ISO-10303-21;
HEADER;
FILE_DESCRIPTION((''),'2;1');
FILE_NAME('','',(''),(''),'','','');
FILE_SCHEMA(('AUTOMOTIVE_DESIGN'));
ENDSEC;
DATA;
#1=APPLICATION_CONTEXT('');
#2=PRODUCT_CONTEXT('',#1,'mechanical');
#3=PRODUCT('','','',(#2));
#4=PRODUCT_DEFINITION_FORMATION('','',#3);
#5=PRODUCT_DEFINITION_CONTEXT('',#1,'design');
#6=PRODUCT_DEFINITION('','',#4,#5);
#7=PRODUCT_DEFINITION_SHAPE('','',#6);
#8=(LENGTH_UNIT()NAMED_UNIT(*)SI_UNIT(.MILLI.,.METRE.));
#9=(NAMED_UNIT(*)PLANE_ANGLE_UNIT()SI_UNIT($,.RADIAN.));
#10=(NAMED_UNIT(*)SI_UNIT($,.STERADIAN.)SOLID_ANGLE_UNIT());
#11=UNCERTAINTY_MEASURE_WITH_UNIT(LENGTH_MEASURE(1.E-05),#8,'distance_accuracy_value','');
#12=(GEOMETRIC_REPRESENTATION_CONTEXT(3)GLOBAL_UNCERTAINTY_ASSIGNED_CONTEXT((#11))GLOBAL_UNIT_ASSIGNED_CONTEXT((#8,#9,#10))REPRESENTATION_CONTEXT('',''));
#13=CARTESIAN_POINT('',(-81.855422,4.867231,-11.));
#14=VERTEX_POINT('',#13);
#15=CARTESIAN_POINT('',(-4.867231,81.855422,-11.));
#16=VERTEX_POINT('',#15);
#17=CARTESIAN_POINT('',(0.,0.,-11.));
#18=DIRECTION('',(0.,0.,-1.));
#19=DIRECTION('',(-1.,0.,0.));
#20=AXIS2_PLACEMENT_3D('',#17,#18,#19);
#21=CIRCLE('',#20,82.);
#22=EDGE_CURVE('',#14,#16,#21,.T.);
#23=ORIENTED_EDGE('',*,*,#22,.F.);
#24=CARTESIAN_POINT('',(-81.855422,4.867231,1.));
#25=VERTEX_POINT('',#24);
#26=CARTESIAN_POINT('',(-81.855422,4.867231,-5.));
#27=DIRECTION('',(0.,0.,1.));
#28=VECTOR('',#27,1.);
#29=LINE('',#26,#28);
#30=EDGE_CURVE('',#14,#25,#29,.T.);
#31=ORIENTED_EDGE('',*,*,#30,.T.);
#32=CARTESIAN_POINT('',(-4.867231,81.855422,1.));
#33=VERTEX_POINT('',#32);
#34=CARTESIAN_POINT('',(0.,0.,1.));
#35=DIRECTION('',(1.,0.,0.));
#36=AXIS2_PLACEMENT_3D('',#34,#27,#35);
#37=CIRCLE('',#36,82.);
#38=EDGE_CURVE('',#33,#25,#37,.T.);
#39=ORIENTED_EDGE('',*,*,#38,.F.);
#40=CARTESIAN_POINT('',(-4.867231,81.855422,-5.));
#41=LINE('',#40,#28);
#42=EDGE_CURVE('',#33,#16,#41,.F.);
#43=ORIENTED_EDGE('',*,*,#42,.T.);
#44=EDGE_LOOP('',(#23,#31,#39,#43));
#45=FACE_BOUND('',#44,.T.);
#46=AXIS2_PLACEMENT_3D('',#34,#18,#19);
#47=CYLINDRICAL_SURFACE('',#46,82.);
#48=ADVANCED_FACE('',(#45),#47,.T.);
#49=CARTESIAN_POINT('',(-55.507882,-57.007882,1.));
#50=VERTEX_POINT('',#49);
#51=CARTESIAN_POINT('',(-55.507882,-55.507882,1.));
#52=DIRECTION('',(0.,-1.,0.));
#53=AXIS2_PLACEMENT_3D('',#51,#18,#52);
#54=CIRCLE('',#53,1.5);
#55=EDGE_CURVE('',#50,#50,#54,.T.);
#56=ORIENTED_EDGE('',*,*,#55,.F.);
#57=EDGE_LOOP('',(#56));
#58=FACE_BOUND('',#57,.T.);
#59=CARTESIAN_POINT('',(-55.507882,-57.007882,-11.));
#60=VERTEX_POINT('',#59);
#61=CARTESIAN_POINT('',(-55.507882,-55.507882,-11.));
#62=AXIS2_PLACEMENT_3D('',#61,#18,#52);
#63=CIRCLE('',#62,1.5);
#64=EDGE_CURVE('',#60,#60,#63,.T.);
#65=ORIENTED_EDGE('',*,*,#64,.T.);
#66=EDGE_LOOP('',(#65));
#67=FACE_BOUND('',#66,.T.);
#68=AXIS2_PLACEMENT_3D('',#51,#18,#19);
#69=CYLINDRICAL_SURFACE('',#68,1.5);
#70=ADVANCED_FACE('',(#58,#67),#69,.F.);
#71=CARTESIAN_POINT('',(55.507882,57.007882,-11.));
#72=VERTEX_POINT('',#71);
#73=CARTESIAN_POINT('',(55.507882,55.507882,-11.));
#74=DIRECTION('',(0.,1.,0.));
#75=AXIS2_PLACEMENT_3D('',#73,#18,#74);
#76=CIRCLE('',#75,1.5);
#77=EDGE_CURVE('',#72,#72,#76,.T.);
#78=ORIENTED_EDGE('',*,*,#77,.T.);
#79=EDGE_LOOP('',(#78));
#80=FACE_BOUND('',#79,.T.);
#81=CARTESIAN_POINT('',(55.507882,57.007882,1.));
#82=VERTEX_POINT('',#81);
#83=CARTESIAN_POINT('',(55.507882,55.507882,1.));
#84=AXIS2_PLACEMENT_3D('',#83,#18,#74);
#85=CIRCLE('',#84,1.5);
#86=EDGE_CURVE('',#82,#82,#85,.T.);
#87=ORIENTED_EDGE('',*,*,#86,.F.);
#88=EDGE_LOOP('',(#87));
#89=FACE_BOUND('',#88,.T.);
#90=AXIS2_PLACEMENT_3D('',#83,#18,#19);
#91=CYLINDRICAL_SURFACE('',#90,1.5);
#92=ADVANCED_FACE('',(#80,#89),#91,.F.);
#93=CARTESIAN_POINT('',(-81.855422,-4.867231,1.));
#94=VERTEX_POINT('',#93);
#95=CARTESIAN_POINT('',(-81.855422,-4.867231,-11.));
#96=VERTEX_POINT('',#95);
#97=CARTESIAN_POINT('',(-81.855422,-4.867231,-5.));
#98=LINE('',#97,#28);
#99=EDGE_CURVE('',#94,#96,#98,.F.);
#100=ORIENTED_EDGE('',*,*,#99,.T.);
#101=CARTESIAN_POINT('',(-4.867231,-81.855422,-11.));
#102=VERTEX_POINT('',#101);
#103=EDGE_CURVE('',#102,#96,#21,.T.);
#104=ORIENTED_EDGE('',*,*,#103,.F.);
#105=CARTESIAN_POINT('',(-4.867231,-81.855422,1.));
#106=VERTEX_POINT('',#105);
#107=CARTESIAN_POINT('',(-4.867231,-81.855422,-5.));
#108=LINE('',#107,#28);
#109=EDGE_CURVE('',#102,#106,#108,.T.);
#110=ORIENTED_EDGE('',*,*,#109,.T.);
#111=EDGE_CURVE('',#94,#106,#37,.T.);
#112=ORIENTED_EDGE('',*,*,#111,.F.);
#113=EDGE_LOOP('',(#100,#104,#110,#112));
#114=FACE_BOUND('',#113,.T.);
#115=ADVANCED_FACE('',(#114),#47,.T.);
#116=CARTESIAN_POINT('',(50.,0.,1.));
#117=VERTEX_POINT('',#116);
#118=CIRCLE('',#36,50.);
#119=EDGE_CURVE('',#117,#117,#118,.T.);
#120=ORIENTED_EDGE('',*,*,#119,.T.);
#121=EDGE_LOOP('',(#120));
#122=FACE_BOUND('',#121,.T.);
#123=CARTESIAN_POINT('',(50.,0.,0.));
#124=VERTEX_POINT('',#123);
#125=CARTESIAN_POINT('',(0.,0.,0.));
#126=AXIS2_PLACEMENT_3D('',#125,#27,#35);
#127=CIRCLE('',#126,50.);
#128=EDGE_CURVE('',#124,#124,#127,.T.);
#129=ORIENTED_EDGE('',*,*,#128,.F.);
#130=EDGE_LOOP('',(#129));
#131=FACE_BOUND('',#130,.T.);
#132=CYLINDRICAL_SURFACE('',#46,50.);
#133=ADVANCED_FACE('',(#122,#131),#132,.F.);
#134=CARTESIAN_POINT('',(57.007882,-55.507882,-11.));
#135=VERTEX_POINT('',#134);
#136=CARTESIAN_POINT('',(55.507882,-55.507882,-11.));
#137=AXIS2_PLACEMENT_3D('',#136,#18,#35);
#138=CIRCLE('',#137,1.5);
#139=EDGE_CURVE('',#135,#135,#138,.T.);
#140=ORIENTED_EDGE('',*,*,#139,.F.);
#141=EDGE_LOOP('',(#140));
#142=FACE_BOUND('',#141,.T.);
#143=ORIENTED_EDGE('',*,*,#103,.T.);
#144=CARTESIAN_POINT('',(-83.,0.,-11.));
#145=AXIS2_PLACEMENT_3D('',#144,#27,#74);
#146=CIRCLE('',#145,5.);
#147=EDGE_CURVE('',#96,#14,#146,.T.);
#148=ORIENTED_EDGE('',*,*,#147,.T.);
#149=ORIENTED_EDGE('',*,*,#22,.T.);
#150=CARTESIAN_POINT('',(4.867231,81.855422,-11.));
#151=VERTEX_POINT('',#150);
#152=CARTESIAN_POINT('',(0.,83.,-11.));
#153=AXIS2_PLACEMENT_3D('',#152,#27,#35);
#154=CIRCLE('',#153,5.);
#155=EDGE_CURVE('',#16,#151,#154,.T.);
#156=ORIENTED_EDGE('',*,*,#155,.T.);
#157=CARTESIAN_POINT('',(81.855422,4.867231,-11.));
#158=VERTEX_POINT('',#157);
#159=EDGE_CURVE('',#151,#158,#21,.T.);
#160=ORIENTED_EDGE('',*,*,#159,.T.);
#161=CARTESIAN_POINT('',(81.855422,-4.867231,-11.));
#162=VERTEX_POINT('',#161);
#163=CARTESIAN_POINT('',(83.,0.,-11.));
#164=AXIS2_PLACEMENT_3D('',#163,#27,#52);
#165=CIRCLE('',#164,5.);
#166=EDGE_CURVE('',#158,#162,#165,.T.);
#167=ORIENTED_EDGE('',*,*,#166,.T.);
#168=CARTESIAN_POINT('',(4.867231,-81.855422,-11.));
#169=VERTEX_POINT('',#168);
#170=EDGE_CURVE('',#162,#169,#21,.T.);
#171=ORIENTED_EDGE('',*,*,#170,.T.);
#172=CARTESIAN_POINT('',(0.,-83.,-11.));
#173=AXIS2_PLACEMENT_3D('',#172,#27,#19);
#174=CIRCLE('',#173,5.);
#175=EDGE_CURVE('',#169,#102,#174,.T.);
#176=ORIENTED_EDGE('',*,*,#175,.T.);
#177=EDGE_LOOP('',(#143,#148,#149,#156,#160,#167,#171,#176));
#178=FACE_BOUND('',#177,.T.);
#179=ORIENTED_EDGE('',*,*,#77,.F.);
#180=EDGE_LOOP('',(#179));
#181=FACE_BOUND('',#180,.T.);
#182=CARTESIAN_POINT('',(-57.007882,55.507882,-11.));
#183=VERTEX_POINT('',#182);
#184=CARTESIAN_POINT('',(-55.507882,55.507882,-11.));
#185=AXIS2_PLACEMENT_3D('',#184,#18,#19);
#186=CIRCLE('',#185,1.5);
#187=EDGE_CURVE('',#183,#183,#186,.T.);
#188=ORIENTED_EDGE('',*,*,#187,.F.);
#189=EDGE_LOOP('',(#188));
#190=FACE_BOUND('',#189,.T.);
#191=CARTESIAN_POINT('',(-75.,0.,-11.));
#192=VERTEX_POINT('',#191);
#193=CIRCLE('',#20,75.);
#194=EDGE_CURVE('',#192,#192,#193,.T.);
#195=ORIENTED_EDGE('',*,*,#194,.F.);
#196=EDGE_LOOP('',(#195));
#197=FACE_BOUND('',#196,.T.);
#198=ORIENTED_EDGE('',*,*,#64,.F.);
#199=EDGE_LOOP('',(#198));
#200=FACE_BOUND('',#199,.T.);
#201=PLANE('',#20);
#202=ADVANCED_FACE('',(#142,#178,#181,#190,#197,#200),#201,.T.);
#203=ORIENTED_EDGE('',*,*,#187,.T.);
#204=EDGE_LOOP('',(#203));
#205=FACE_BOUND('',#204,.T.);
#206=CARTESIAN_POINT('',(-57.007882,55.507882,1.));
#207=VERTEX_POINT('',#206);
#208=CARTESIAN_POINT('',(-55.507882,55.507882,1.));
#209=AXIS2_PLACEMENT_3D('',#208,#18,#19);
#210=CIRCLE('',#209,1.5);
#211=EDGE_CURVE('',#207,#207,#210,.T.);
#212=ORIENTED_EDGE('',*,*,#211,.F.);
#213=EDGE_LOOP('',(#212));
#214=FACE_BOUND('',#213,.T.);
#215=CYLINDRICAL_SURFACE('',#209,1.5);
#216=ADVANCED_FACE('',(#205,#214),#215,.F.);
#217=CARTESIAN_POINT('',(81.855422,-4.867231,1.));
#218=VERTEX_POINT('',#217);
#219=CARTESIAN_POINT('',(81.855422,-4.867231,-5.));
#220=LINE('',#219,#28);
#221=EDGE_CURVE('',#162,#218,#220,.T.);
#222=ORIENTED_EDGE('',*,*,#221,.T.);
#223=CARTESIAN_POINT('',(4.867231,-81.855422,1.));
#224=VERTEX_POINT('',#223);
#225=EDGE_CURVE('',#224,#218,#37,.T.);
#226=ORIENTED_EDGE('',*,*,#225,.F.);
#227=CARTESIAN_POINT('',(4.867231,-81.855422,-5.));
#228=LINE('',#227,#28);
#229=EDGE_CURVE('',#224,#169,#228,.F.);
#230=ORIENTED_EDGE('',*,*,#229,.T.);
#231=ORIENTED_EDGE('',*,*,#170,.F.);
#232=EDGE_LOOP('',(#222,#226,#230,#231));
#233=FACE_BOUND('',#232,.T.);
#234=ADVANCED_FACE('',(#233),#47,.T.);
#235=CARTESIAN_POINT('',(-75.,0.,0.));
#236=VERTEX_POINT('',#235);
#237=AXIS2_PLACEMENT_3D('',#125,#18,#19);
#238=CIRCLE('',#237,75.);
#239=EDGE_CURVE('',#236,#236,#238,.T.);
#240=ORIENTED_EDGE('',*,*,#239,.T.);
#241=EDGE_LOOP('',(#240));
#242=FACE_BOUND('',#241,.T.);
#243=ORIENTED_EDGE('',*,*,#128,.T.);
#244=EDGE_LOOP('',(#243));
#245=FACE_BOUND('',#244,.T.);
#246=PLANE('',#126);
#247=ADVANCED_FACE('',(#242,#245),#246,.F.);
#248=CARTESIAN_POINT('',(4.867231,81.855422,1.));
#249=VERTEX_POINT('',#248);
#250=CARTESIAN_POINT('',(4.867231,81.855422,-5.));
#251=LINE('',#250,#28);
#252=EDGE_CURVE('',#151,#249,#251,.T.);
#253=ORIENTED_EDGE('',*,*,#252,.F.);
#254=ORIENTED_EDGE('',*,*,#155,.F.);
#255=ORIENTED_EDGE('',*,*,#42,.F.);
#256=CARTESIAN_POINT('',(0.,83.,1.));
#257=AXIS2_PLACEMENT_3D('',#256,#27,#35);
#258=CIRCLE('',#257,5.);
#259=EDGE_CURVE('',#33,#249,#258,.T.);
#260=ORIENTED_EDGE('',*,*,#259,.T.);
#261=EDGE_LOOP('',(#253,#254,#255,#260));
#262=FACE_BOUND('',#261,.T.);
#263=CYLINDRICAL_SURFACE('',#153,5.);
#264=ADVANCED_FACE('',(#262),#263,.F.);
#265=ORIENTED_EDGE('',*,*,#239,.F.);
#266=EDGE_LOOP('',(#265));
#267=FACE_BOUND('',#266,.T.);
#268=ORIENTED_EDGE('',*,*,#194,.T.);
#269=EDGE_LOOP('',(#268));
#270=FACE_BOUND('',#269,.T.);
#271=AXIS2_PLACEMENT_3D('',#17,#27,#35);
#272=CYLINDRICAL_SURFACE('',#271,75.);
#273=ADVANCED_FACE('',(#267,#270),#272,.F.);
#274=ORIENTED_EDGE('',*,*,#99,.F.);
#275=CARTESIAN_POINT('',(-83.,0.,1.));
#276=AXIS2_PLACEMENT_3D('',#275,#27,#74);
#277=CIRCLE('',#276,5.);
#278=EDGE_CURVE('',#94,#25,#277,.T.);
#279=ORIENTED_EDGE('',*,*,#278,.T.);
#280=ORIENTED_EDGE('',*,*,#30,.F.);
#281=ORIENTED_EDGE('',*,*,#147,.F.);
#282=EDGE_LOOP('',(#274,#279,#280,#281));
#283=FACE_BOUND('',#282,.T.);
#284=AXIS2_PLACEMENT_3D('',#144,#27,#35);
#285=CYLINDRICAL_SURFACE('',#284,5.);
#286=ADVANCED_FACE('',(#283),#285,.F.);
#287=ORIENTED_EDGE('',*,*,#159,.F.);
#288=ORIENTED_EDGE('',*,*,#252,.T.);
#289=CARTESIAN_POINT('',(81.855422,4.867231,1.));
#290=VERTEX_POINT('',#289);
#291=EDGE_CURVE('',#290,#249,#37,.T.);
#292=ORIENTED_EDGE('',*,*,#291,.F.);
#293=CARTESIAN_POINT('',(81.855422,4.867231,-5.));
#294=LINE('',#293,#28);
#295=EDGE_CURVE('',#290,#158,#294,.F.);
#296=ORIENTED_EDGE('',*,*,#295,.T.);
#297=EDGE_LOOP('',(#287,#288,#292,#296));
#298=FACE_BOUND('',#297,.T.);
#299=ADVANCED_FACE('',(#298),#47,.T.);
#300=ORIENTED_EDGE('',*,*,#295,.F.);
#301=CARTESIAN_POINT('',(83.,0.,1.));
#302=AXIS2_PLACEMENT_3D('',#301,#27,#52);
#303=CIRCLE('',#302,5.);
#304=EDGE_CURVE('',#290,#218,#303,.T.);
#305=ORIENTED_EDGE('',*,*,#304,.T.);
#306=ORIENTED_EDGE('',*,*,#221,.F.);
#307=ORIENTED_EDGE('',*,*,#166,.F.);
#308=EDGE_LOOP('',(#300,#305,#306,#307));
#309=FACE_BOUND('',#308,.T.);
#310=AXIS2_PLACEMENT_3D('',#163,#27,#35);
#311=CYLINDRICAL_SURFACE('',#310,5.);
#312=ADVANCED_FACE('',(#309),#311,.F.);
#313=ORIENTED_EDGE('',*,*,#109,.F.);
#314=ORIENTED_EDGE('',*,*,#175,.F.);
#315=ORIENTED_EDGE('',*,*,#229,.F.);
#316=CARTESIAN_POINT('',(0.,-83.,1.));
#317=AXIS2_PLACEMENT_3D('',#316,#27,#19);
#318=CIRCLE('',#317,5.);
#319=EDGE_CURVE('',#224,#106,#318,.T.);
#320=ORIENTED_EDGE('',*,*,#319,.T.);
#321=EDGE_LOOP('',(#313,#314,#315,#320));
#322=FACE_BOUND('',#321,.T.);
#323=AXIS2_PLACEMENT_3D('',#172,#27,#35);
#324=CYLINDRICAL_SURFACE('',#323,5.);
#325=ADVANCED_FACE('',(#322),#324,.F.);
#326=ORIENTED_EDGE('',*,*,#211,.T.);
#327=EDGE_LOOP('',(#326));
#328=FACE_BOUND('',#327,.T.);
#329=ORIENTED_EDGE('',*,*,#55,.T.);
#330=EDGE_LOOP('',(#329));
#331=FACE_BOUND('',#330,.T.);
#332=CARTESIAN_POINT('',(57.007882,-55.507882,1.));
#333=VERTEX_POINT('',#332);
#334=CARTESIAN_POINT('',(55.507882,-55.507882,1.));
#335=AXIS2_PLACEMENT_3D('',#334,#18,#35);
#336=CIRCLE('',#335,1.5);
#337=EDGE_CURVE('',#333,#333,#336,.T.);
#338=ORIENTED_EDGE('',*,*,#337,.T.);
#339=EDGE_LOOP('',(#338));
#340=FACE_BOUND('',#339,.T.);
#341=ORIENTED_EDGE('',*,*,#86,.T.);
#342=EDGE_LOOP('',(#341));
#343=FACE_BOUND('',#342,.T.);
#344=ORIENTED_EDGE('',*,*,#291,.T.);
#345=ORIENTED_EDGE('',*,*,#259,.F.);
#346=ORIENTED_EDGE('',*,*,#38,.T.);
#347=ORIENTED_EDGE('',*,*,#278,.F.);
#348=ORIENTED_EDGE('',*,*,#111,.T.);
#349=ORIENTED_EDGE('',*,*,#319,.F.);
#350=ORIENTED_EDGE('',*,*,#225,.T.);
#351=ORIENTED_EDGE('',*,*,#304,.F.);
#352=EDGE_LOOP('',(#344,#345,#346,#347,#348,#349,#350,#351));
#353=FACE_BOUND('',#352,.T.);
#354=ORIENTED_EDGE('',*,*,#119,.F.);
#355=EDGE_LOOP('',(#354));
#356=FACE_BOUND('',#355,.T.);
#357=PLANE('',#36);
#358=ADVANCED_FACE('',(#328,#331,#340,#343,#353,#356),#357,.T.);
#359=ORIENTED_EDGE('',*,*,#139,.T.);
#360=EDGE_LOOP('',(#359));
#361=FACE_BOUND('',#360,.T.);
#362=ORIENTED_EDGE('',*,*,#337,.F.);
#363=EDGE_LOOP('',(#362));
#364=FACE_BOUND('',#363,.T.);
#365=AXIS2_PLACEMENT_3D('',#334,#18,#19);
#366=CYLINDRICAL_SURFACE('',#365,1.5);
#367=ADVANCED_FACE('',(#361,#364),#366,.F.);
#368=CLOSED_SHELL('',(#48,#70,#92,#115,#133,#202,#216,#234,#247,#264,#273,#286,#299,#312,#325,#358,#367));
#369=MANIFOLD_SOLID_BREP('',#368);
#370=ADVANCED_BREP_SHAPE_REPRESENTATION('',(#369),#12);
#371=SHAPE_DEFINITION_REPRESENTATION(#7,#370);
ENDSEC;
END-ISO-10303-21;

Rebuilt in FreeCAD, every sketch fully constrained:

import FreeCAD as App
import Part
import Sketcher

V = App.Vector
Q = App.Units.Quantity

doc = App.newDocument("Part")
body = doc.addObject("PartDesign::Body", "Body")

sketch1 = body.newObject("Sketcher::SketchObject", "Sketch")
sketch1.AttachmentSupport = (doc.getObject("XY_Plane"), [""])
sketch1.MapMode = "FlatFace"
sketch1.addGeometry([
    Part.Circle(V(0, 0, 0), V(0, 0, 1), 82),
    Part.Circle(V(0, 0, 0), V(0, 0, 1), 50),
], False)
sketch1.addConstraint([
    Sketcher.Constraint("Coincident", 0, 3, -1, 1),
    Sketcher.Constraint("Coincident", 1, 3, -1, 1),
    Sketcher.Constraint("Diameter", 0, Q("164 mm")),
    Sketcher.Constraint("Diameter", 1, Q("100 mm")),
])
pad1 = body.newObject("PartDesign::Pad", "Pad")
pad1.Profile = sketch1
pad1.Length = 1

sketch2 = body.newObject("Sketcher::SketchObject", "Sketch001")
sketch2.AttachmentSupport = (doc.getObject("XY_Plane"), [""])
sketch2.MapMode = "FlatFace"
sketch2.AttachmentOffset = App.Placement(V(0, 0, -11), App.Rotation())
sketch2.addGeometry([
    Part.Circle(V(0, 0, 0), V(0, 0, 1), 82),
    Part.Circle(V(0, 0, 0), V(0, 0, 1), 75),
], False)
sketch2.addConstraint([
    Sketcher.Constraint("Coincident", 0, 3, -1, 1),
    Sketcher.Constraint("Coincident", 1, 3, -1, 1),
    Sketcher.Constraint("Diameter", 0, Q("164 mm")),
    Sketcher.Constraint("Diameter", 1, Q("150 mm")),
])
pad2 = body.newObject("PartDesign::Pad", "Pad001")
pad2.Profile = sketch2
pad2.Length = 11

sketch3 = body.newObject("Sketcher::SketchObject", "Sketch002")
sketch3.AttachmentSupport = (doc.getObject("XY_Plane"), [""])
sketch3.MapMode = "FlatFace"
sketch3.AttachmentOffset = App.Placement(V(0, 0, 1), App.Rotation())
sketch3.addGeometry(Part.Circle(V(0, 83, 0), V(0, 0, 1), 5), False)
sketch3.addConstraint([
    Sketcher.Constraint("PointOnObject", 0, 3, -2),
    Sketcher.Constraint("Diameter", 0, Q("10 mm")),
    Sketcher.Constraint("DistanceY", -1, 1, 0, 3, Q("83 mm")),
])
pocket1 = body.newObject("PartDesign::Pocket", "Pocket")
pocket1.Profile = sketch3
pocket1.Type = "ThroughAll"
doc.recompute()

polarpattern = body.newObject("PartDesign::PolarPattern", "PolarPattern")
polarpattern.Originals = [pocket1]
polarpattern.Axis = (doc.getObject("Z_Axis"), [""])
polarpattern.Angle = 360
polarpattern.Occurrences = 4
body.Tip = polarpattern

sketch4 = body.newObject("Sketcher::SketchObject", "Sketch003")
sketch4.AttachmentSupport = (doc.getObject("XY_Plane"), [""])
sketch4.MapMode = "FlatFace"
sketch4.AttachmentOffset = App.Placement(V(0, 0, -11), App.Rotation())
sketch4.addGeometry(Part.Circle(V(-55.5, 55.5, 0), V(0, 0, 1), 1.5), False)
sketch4.addConstraint([
    Sketcher.Constraint("Diameter", 0, Q("3 mm")),
    Sketcher.Constraint("DistanceX", 0, 3, -1, 1, Q("55.507882 mm")),
    Sketcher.Constraint("DistanceY", -1, 1, 0, 3, Q("55.507882 mm")),
])
pocket2 = body.newObject("PartDesign::Pocket", "Pocket001")
pocket2.Profile = sketch4
pocket2.Type = "ThroughAll"
pocket2.Reversed = True
doc.recompute()

polarpattern2 = body.newObject("PartDesign::PolarPattern", "PolarPattern001")
polarpattern2.Originals = [pocket2]
polarpattern2.Axis = (doc.getObject("Z_Axis"), [""])
polarpattern2.Angle = 360
polarpattern2.Occurrences = 4
body.Tip = polarpattern2

doc.recompute()
